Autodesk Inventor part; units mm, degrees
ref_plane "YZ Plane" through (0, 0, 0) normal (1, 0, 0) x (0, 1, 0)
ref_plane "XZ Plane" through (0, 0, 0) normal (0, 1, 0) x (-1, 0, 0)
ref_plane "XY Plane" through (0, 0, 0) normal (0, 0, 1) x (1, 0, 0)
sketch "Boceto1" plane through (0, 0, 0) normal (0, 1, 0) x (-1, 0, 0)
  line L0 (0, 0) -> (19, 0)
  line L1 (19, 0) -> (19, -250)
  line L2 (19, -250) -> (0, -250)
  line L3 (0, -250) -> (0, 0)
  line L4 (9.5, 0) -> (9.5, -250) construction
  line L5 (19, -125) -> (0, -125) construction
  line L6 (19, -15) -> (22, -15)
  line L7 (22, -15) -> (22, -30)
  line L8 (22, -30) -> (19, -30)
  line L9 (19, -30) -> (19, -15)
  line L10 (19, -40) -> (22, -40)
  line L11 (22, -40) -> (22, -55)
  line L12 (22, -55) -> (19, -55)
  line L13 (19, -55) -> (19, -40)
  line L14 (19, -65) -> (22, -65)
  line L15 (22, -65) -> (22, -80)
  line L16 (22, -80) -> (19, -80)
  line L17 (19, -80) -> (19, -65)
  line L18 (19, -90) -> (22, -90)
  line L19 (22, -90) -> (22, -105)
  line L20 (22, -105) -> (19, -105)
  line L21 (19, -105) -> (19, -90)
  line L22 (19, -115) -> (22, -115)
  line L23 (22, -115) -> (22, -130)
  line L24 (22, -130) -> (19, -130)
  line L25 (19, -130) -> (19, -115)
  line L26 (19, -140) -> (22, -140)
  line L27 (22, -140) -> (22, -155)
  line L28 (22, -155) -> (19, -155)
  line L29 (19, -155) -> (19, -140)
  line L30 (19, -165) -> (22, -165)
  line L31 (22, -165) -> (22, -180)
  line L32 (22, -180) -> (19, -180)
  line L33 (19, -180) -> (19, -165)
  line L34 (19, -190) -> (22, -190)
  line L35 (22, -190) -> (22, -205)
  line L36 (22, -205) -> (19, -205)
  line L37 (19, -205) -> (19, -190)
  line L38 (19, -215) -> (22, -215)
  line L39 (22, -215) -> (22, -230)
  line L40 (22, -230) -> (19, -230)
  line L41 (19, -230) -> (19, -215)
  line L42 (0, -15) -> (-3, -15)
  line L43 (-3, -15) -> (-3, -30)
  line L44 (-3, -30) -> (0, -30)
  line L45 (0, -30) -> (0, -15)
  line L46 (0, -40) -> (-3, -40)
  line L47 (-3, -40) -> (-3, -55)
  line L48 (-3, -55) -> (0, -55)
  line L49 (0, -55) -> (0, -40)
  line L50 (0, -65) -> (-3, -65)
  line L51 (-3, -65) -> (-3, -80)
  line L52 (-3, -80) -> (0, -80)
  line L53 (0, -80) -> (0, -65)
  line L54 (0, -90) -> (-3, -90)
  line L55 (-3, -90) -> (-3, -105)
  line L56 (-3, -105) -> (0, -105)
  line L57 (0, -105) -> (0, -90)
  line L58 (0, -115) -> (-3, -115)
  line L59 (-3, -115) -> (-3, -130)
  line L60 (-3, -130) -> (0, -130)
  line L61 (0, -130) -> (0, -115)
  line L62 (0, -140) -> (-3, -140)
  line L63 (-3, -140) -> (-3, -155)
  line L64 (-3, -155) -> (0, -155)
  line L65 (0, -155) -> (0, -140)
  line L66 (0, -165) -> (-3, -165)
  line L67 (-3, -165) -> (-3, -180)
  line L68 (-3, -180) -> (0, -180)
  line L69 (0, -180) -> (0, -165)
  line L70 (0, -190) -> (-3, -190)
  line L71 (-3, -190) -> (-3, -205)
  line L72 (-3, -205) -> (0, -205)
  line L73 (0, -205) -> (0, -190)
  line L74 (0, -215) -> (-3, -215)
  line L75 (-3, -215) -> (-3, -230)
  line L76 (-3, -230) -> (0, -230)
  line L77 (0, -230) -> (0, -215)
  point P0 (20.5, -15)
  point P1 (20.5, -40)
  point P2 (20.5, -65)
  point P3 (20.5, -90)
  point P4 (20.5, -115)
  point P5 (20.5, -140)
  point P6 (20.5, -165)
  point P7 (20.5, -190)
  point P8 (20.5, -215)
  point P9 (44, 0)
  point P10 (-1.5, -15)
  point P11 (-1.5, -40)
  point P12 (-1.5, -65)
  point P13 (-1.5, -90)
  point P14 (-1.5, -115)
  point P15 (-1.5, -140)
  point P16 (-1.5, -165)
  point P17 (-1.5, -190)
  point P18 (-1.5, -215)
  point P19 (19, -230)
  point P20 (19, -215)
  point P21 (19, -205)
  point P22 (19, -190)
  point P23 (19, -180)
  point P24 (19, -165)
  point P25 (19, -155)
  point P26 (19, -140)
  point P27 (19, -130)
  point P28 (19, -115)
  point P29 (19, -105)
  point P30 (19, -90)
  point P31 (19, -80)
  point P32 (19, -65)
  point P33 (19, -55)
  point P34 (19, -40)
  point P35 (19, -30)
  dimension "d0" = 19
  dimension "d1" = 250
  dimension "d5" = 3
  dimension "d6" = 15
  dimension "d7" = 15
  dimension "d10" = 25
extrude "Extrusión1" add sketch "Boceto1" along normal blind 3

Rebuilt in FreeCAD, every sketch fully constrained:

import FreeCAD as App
import Part
import Sketcher
from FreeCAD import Vector

doc = App.newDocument("Part")
body = doc.addObject("PartDesign::Body", "Body")

sketch1 = doc.addObject("Sketcher::SketchObject", "Sketch")
body.addObject(sketch1)
sketch1.AttachmentSupport = (doc.XZ_Plane, [""])
sketch1.MapMode = "FlatFace"
sketch1.addGeometry(Part.LineSegment(Vector(-19, 0, 0), Vector(0, 0, 0)), False)
sketch1.addGeometry(Part.LineSegment(Vector(0, 0, 0), Vector(0, -15, 0)), False)
sketch1.addGeometry(Part.LineSegment(Vector(0, -15, 0), Vector(3, -15, 0)), False)
sketch1.addGeometry(Part.LineSegment(Vector(3, -15, 0), Vector(3, -30, 0)), False)
sketch1.addGeometry(Part.LineSegment(Vector(3, -30, 0), Vector(0, -30, 0)), False)
sketch1.addGeometry(Part.LineSegment(Vector(0, -30, 0), Vector(0, -40, 0)), False)
sketch1.addGeometry(Part.LineSegment(Vector(0, -40, 0), Vector(3, -40, 0)), False)
sketch1.addGeometry(Part.LineSegment(Vector(3, -40, 0), Vector(3, -55, 0)), False)
sketch1.addGeometry(Part.LineSegment(Vector(3, -55, 0), Vector(0, -55, 0)), False)
sketch1.addGeometry(Part.LineSegment(Vector(0, -55, 0), Vector(0, -65, 0)), False)
sketch1.addGeometry(Part.LineSegment(Vector(0, -65, 0), Vector(3, -65, 0)), False)
sketch1.addGeometry(Part.LineSegment(Vector(3, -65, 0), Vector(3, -80, 0)), False)
sketch1.addGeometry(Part.LineSegment(Vector(3, -80, 0), Vector(0, -80, 0)), False)
sketch1.addGeometry(Part.LineSegment(Vector(0, -80, 0), Vector(0, -90, 0)), False)
sketch1.addGeometry(Part.LineSegment(Vector(0, -90, 0), Vector(3, -90, 0)), False)
sketch1.addGeometry(Part.LineSegment(Vector(3, -90, 0), Vector(3, -105, 0)), False)
sketch1.addGeometry(Part.LineSegment(Vector(3, -105, 0), Vector(0, -105, 0)), False)
sketch1.addGeometry(Part.LineSegment(Vector(0, -105, 0), Vector(0, -115, 0)), False)
sketch1.addGeometry(Part.LineSegment(Vector(0, -115, 0), Vector(3, -115, 0)), False)
sketch1.addGeometry(Part.LineSegment(Vector(3, -115, 0), Vector(3, -130, 0)), False)
sketch1.addGeometry(Part.LineSegment(Vector(3, -130, 0), Vector(0, -130, 0)), False)
sketch1.addGeometry(Part.LineSegment(Vector(0, -130, 0), Vector(0, -140, 0)), False)
sketch1.addGeometry(Part.LineSegment(Vector(0, -140, 0), Vector(3, -140, 0)), False)
sketch1.addGeometry(Part.LineSegment(Vector(3, -140, 0), Vector(3, -155, 0)), False)
sketch1.addGeometry(Part.LineSegment(Vector(3, -155, 0), Vector(0, -155, 0)), False)
sketch1.addGeometry(Part.LineSegment(Vector(0, -155, 0), Vector(0, -165, 0)), False)
sketch1.addGeometry(Part.LineSegment(Vector(0, -165, 0), Vector(3, -165, 0)), False)
sketch1.addGeometry(Part.LineSegment(Vector(3, -165, 0), Vector(3, -180, 0)), False)
sketch1.addGeometry(Part.LineSegment(Vector(3, -180, 0), Vector(0, -180, 0)), False)
sketch1.addGeometry(Part.LineSegment(Vector(0, -180, 0), Vector(0, -190, 0)), False)
sketch1.addGeometry(Part.LineSegment(Vector(0, -190, 0), Vector(3, -190, 0)), False)
sketch1.addGeometry(Part.LineSegment(Vector(3, -190, 0), Vector(3, -205, 0)), False)
sketch1.addGeometry(Part.LineSegment(Vector(3, -205, 0), Vector(0, -205, 0)), False)
sketch1.addGeometry(Part.LineSegment(Vector(0, -205, 0), Vector(0, -215, 0)), False)
sketch1.addGeometry(Part.LineSegment(Vector(0, -215, 0), Vector(3, -215, 0)), False)
sketch1.addGeometry(Part.LineSegment(Vector(3, -215, 0), Vector(3, -230, 0)), False)
sketch1.addGeometry(Part.LineSegment(Vector(3, -230, 0), Vector(0, -230, 0)), False)
sketch1.addGeometry(Part.LineSegment(Vector(0, -230, 0), Vector(0, -250, 0)), False)
sketch1.addGeometry(Part.LineSegment(Vector(0, -250, 0), Vector(-19, -250, 0)), False)
sketch1.addGeometry(Part.LineSegment(Vector(-19, -250, 0), Vector(-19, -230, 0)), False)
sketch1.addGeometry(Part.LineSegment(Vector(-19, -230, 0), Vector(-22, -230, 0)), False)
sketch1.addGeometry(Part.LineSegment(Vector(-22, -230, 0), Vector(-22, -215, 0)), False)
sketch1.addGeometry(Part.LineSegment(Vector(-22, -215, 0), Vector(-19, -215, 0)), False)
sketch1.addGeometry(Part.LineSegment(Vector(-19, -215, 0), Vector(-19, -205, 0)), False)
sketch1.addGeometry(Part.LineSegment(Vector(-19, -205, 0), Vector(-22, -205, 0)), False)
sketch1.addGeometry(Part.LineSegment(Vector(-22, -205, 0), Vector(-22, -190, 0)), False)
sketch1.addGeometry(Part.LineSegment(Vector(-22, -190, 0), Vector(-19, -190, 0)), False)
sketch1.addGeometry(Part.LineSegment(Vector(-19, -190, 0), Vector(-19, -180, 0)), False)
sketch1.addGeometry(Part.LineSegment(Vector(-19, -180, 0), Vector(-22, -180, 0)), False)
sketch1.addGeometry(Part.LineSegment(Vector(-22, -180, 0), Vector(-22, -165, 0)), False)
sketch1.addGeometry(Part.LineSegment(Vector(-22, -165, 0), Vector(-19, -165, 0)), False)
sketch1.addGeometry(Part.LineSegment(Vector(-19, -165, 0), Vector(-19, -155, 0)), False)
sketch1.addGeometry(Part.LineSegment(Vector(-19, -155, 0), Vector(-22, -155, 0)), False)
sketch1.addGeometry(Part.LineSegment(Vector(-22, -155, 0), Vector(-22, -140, 0)), False)
sketch1.addGeometry(Part.LineSegment(Vector(-22, -140, 0), Vector(-19, -140, 0)), False)
sketch1.addGeometry(Part.LineSegment(Vector(-19, -140, 0), Vector(-19, -130, 0)), False)
sketch1.addGeometry(Part.LineSegment(Vector(-19, -130, 0), Vector(-22, -130, 0)), False)
sketch1.addGeometry(Part.LineSegment(Vector(-22, -130, 0), Vector(-22, -115, 0)), False)
sketch1.addGeometry(Part.LineSegment(Vector(-22, -115, 0), Vector(-19, -115, 0)), False)
sketch1.addGeometry(Part.LineSegment(Vector(-19, -115, 0), Vector(-19, -105, 0)), False)
sketch1.addGeometry(Part.LineSegment(Vector(-19, -105, 0), Vector(-22, -105, 0)), False)
sketch1.addGeometry(Part.LineSegment(Vector(-22, -105, 0), Vector(-22, -90, 0)), False)
sketch1.addGeometry(Part.LineSegment(Vector(-22, -90, 0), Vector(-19, -90, 0)), False)
sketch1.addGeometry(Part.LineSegment(Vector(-19, -90, 0), Vector(-19, -80, 0)), False)
sketch1.addGeometry(Part.LineSegment(Vector(-19, -80, 0), Vector(-22, -80, 0)), False)
sketch1.addGeometry(Part.LineSegment(Vector(-22, -80, 0), Vector(-22, -65, 0)), False)
sketch1.addGeometry(Part.LineSegment(Vector(-22, -65, 0), Vector(-19, -65, 0)), False)
sketch1.addGeometry(Part.LineSegment(Vector(-19, -65, 0), Vector(-19, -55, 0)), False)
sketch1.addGeometry(Part.LineSegment(Vector(-19, -55, 0), Vector(-22, -55, 0)), False)
sketch1.addGeometry(Part.LineSegment(Vector(-22, -55, 0), Vector(-22, -40, 0)), False)
sketch1.addGeometry(Part.LineSegment(Vector(-22, -40, 0), Vector(-19, -40, 0)), False)
sketch1.addGeometry(Part.LineSegment(Vector(-19, -40, 0), Vector(-19, -30, 0)), False)
sketch1.addGeometry(Part.LineSegment(Vector(-19, -30, 0), Vector(-22, -30, 0)), False)
sketch1.addGeometry(Part.LineSegment(Vector(-22, -30, 0), Vector(-22, -15, 0)), False)
sketch1.addGeometry(Part.LineSegment(Vector(-22, -15, 0), Vector(-19, -15, 0)), False)
sketch1.addGeometry(Part.LineSegment(Vector(-19, -15, 0), Vector(-19, 0, 0)), False)
sketch1.addConstraint(Sketcher.Constraint("Coincident", 0, 2, 1, 1))
sketch1.addConstraint(Sketcher.Constraint("Coincident", 1, 2, 2, 1))
sketch1.addConstraint(Sketcher.Constraint("Coincident", 2, 2, 3, 1))
sketch1.addConstraint(Sketcher.Constraint("Coincident", 3, 2, 4, 1))
sketch1.addConstraint(Sketcher.Constraint("Coincident", 4, 2, 5, 1))
sketch1.addConstraint(Sketcher.Constraint("Coincident", 5, 2, 6, 1))
sketch1.addConstraint(Sketcher.Constraint("Coincident", 6, 2, 7, 1))
sketch1.addConstraint(Sketcher.Constraint("Coincident", 7, 2, 8, 1))
sketch1.addConstraint(Sketcher.Constraint("Coincident", 8, 2, 9, 1))
sketch1.addConstraint(Sketcher.Constraint("Coincident", 9, 2, 10, 1))
sketch1.addConstraint(Sketcher.Constraint("Coincident", 10, 2, 11, 1))
sketch1.addConstraint(Sketcher.Constraint("Coincident", 11, 2, 12, 1))
sketch1.addConstraint(Sketcher.Constraint("Coincident", 12, 2, 13, 1))
sketch1.addConstraint(Sketcher.Constraint("Coincident", 13, 2, 14, 1))
sketch1.addConstraint(Sketcher.Constraint("Coincident", 14, 2, 15, 1))
sketch1.addConstraint(Sketcher.Constraint("Coincident", 15, 2, 16, 1))
sketch1.addConstraint(Sketcher.Constraint("Coincident", 16, 2, 17, 1))
sketch1.addConstraint(Sketcher.Constraint("Coincident", 17, 2, 18, 1))
sketch1.addConstraint(Sketcher.Constraint("Coincident", 18, 2, 19, 1))
sketch1.addConstraint(Sketcher.Constraint("Coincident", 19, 2, 20, 1))
sketch1.addConstraint(Sketcher.Constraint("Coincident", 20, 2, 21, 1))
sketch1.addConstraint(Sketcher.Constraint("Coincident", 21, 2, 22, 1))
sketch1.addConstraint(Sketcher.Constraint("Coincident", 22, 2, 23, 1))
sketch1.addConstraint(Sketcher.Constraint("Coincident", 23, 2, 24, 1))
sketch1.addConstraint(Sketcher.Constraint("Coincident", 24, 2, 25, 1))
sketch1.addConstraint(Sketcher.Constraint("Coincident", 25, 2, 26, 1))
sketch1.addConstraint(Sketcher.Constraint("Coincident", 26, 2, 27, 1))
sketch1.addConstraint(Sketcher.Constraint("Coincident", 27, 2, 28, 1))
sketch1.addConstraint(Sketcher.Constraint("Coincident", 28, 2, 29, 1))
sketch1.addConstraint(Sketcher.Constraint("Coincident", 29, 2, 30, 1))
sketch1.addConstraint(Sketcher.Constraint("Coincident", 30, 2, 31, 1))
sketch1.addConstraint(Sketcher.Constraint("Coincident", 31, 2, 32, 1))
sketch1.addConstraint(Sketcher.Constraint("Coincident", 32, 2, 33, 1))
sketch1.addConstraint(Sketcher.Constraint("Coincident", 33, 2, 34, 1))
sketch1.addConstraint(Sketcher.Constraint("Coincident", 34, 2, 35, 1))
sketch1.addConstraint(Sketcher.Constraint("Coincident", 35, 2, 36, 1))
sketch1.addConstraint(Sketcher.Constraint("Coincident", 36, 2, 37, 1))
sketch1.addConstraint(Sketcher.Constraint("Coincident", 37, 2, 38, 1))
sketch1.addConstraint(Sketcher.Constraint("Coincident", 38, 2, 39, 1))
sketch1.addConstraint(Sketcher.Constraint("Coincident", 39, 2, 40, 1))
sketch1.addConstraint(Sketcher.Constraint("Coincident", 40, 2, 41, 1))
sketch1.addConstraint(Sketcher.Constraint("Coincident", 41, 2, 42, 1))
sketch1.addConstraint(Sketcher.Constraint("Coincident", 42, 2, 43, 1))
sketch1.addConstraint(Sketcher.Constraint("Coincident", 43, 2, 44, 1))
sketch1.addConstraint(Sketcher.Constraint("Coincident", 44, 2, 45, 1))
sketch1.addConstraint(Sketcher.Constraint("Coincident", 45, 2, 46, 1))
sketch1.addConstraint(Sketcher.Constraint("Coincident", 46, 2, 47, 1))
sketch1.addConstraint(Sketcher.Constraint("Coincident", 47, 2, 48, 1))
sketch1.addConstraint(Sketcher.Constraint("Coincident", 48, 2, 49, 1))
sketch1.addConstraint(Sketcher.Constraint("Coincident", 49, 2, 50, 1))
sketch1.addConstraint(Sketcher.Constraint("Coincident", 50, 2, 51, 1))
sketch1.addConstraint(Sketcher.Constraint("Coincident", 51, 2, 52, 1))
sketch1.addConstraint(Sketcher.Constraint("Coincident", 52, 2, 53, 1))
sketch1.addConstraint(Sketcher.Constraint("Coincident", 53, 2, 54, 1))
sketch1.addConstraint(Sketcher.Constraint("Coincident", 54, 2, 55, 1))
sketch1.addConstraint(Sketcher.Constraint("Coincident", 55, 2, 56, 1))
sketch1.addConstraint(Sketcher.Constraint("Coincident", 56, 2, 57, 1))
sketch1.addConstraint(Sketcher.Constraint("Coincident", 57, 2, 58, 1))
sketch1.addConstraint(Sketcher.Constraint("Coincident", 58, 2, 59, 1))
sketch1.addConstraint(Sketcher.Constraint("Coincident", 59, 2, 60, 1))
sketch1.addConstraint(Sketcher.Constraint("Coincident", 60, 2, 61, 1))
sketch1.addConstraint(Sketcher.Constraint("Coincident", 61, 2, 62, 1))
sketch1.addConstraint(Sketcher.Constraint("Coincident", 62, 2, 63, 1))
sketch1.addConstraint(Sketcher.Constraint("Coincident", 63, 2, 64, 1))
sketch1.addConstraint(Sketcher.Constraint("Coincident", 64, 2, 65, 1))
sketch1.addConstraint(Sketcher.Constraint("Coincident", 65, 2, 66, 1))
sketch1.addConstraint(Sketcher.Constraint("Coincident", 66, 2, 67, 1))
sketch1.addConstraint(Sketcher.Constraint("Coincident", 67, 2, 68, 1))
sketch1.addConstraint(Sketcher.Constraint("Coincident", 68, 2, 69, 1))
sketch1.addConstraint(Sketcher.Constraint("Coincident", 69, 2, 70, 1))
sketch1.addConstraint(Sketcher.Constraint("Coincident", 70, 2, 71, 1))
sketch1.addConstraint(Sketcher.Constraint("Coincident", 71, 2, 72, 1))
sketch1.addConstraint(Sketcher.Constraint("Coincident", 72, 2, 73, 1))
sketch1.addConstraint(Sketcher.Constraint("Coincident", 73, 2, 74, 1))
sketch1.addConstraint(Sketcher.Constraint("Coincident", 74, 2, 75, 1))
sketch1.addConstraint(Sketcher.Constraint("Coincident", 75, 2, 0, 1))
sketch1.addConstraint(Sketcher.Constraint("Horizontal", 0))
sketch1.addConstraint(Sketcher.Constraint("Vertical", 1))
sketch1.addConstraint(Sketcher.Constraint("Horizontal", 2))
sketch1.addConstraint(Sketcher.Constraint("Vertical", 3))
sketch1.addConstraint(Sketcher.Constraint("Horizontal", 4))
sketch1.addConstraint(Sketcher.Constraint("Vertical", 5))
sketch1.addConstraint(Sketcher.Constraint("Horizontal", 6))
sketch1.addConstraint(Sketcher.Constraint("Vertical", 7))
sketch1.addConstraint(Sketcher.Constraint("Horizontal", 8))
sketch1.addConstraint(Sketcher.Constraint("Vertical", 9))
sketch1.addConstraint(Sketcher.Constraint("Horizontal", 10))
sketch1.addConstraint(Sketcher.Constraint("Vertical", 11))
sketch1.addConstraint(Sketcher.Constraint("Horizontal", 12))
sketch1.addConstraint(Sketcher.Constraint("Vertical", 13))
sketch1.addConstraint(Sketcher.Constraint("Horizontal", 14))
sketch1.addConstraint(Sketcher.Constraint("Vertical", 15))
sketch1.addConstraint(Sketcher.Constraint("Horizontal", 16))
sketch1.addConstraint(Sketcher.Constraint("Vertical", 17))
sketch1.addConstraint(Sketcher.Constraint("Horizontal", 18))
sketch1.addConstraint(Sketcher.Constraint("Vertical", 19))
sketch1.addConstraint(Sketcher.Constraint("Horizontal", 20))
sketch1.addConstraint(Sketcher.Constraint("Vertical", 21))
sketch1.addConstraint(Sketcher.Constraint("Horizontal", 22))
sketch1.addConstraint(Sketcher.Constraint("Vertical", 23))
sketch1.addConstraint(Sketcher.Constraint("Horizontal", 24))
sketch1.addConstraint(Sketcher.Constraint("Vertical", 25))
sketch1.addConstraint(Sketcher.Constraint("Horizontal", 26))
sketch1.addConstraint(Sketcher.Constraint("Vertical", 27))
sketch1.addConstraint(Sketcher.Constraint("Horizontal", 28))
sketch1.addConstraint(Sketcher.Constraint("Vertical", 29))
sketch1.addConstraint(Sketcher.Constraint("Horizontal", 30))
sketch1.addConstraint(Sketcher.Constraint("Vertical", 31))
sketch1.addConstraint(Sketcher.Constraint("Horizontal", 32))
sketch1.addConstraint(Sketcher.Constraint("Vertical", 33))
sketch1.addConstraint(Sketcher.Constraint("Horizontal", 34))
sketch1.addConstraint(Sketcher.Constraint("Vertical", 35))
sketch1.addConstraint(Sketcher.Constraint("Horizontal", 36))
sketch1.addConstraint(Sketcher.Constraint("Vertical", 37))
sketch1.addConstraint(Sketcher.Constraint("Horizontal", 38))
sketch1.addConstraint(Sketcher.Constraint("Vertical", 39))
sketch1.addConstraint(Sketcher.Constraint("Horizontal", 40))
sketch1.addConstraint(Sketcher.Constraint("Vertical", 41))
sketch1.addConstraint(Sketcher.Constraint("Horizontal", 42))
sketch1.addConstraint(Sketcher.Constraint("Vertical", 43))
sketch1.addConstraint(Sketcher.Constraint("Horizontal", 44))
sketch1.addConstraint(Sketcher.Constraint("Vertical", 45))
sketch1.addConstraint(Sketcher.Constraint("Horizontal", 46))
sketch1.addConstraint(Sketcher.Constraint("Vertical", 47))
sketch1.addConstraint(Sketcher.Constraint("Horizontal", 48))
sketch1.addConstraint(Sketcher.Constraint("Vertical", 49))
sketch1.addConstraint(Sketcher.Constraint("Horizontal", 50))
sketch1.addConstraint(Sketcher.Constraint("Vertical", 51))
sketch1.addConstraint(Sketcher.Constraint("Horizontal", 52))
sketch1.addConstraint(Sketcher.Constraint("Vertical", 53))
sketch1.addConstraint(Sketcher.Constraint("Horizontal", 54))
sketch1.addConstraint(Sketcher.Constraint("Vertical", 55))
sketch1.addConstraint(Sketcher.Constraint("Horizontal", 56))
sketch1.addConstraint(Sketcher.Constraint("Vertical", 57))
sketch1.addConstraint(Sketcher.Constraint("Horizontal", 58))
sketch1.addConstraint(Sketcher.Constraint("Vertical", 59))
sketch1.addConstraint(Sketcher.Constraint("Horizontal", 60))
sketch1.addConstraint(Sketcher.Constraint("Vertical", 61))
sketch1.addConstraint(Sketcher.Constraint("Horizontal", 62))
sketch1.addConstraint(Sketcher.Constraint("Vertical", 63))
sketch1.addConstraint(Sketcher.Constraint("Horizontal", 64))
sketch1.addConstraint(Sketcher.Constraint("Vertical", 65))
sketch1.addConstraint(Sketcher.Constraint("Horizontal", 66))
sketch1.addConstraint(Sketcher.Constraint("Vertical", 67))
sketch1.addConstraint(Sketcher.Constraint("Horizontal", 68))
sketch1.addConstraint(Sketcher.Constraint("Vertical", 69))
sketch1.addConstraint(Sketcher.Constraint("Horizontal", 70))
sketch1.addConstraint(Sketcher.Constraint("Vertical", 71))
sketch1.addConstraint(Sketcher.Constraint("Horizontal", 72))
sketch1.addConstraint(Sketcher.Constraint("Vertical", 73))
sketch1.addConstraint(Sketcher.Constraint("Horizontal", 74))
sketch1.addConstraint(Sketcher.Constraint("Vertical", 75))
sketch1.addConstraint(Sketcher.Constraint("Coincident", 0, 2, -1, 1))
sketch1.addConstraint(Sketcher.Constraint("PointOnObject", 4, 2, -2))
sketch1.addConstraint(Sketcher.Constraint("PointOnObject", 8, 2, -2))
sketch1.addConstraint(Sketcher.Constraint("PointOnObject", 12, 2, -2))
sketch1.addConstraint(Sketcher.Constraint("PointOnObject", 16, 2, -2))
sketch1.addConstraint(Sketcher.Constraint("PointOnObject", 20, 2, -2))
sketch1.addConstraint(Sketcher.Constraint("PointOnObject", 24, 2, -2))
sketch1.addConstraint(Sketcher.Constraint("PointOnObject", 28, 2, -2))
sketch1.addConstraint(Sketcher.Constraint("PointOnObject", 32, 2, -2))
sketch1.addConstraint(Sketcher.Constraint("PointOnObject", 36, 2, -2))
sketch1.addConstraint(Sketcher.Constraint("Horizontal", 36, 2, 39, 2))
sketch1.addConstraint(Sketcher.Constraint("Horizontal", 34, 2, 41, 2))
sketch1.addConstraint(Sketcher.Constraint("Horizontal", 32, 2, 43, 2))
sketch1.addConstraint(Sketcher.Constraint("Horizontal", 30, 2, 45, 2))
sketch1.addConstraint(Sketcher.Constraint("Horizontal", 28, 2, 47, 2))
sketch1.addConstraint(Sketcher.Constraint("Horizontal", 26, 2, 49, 2))
sketch1.addConstraint(Sketcher.Constraint("Horizontal", 24, 2, 51, 2))
sketch1.addConstraint(Sketcher.Constraint("Horizontal", 22, 2, 53, 2))
sketch1.addConstraint(Sketcher.Constraint("Horizontal", 20, 2, 55, 2))
sketch1.addConstraint(Sketcher.Constraint("Horizontal", 18, 2, 57, 2))
sketch1.addConstraint(Sketcher.Constraint("Horizontal", 16, 2, 59, 2))
sketch1.addConstraint(Sketcher.Constraint("Horizontal", 14, 2, 61, 2))
sketch1.addConstraint(Sketcher.Constraint("Horizontal", 12, 2, 63, 2))
sketch1.addConstraint(Sketcher.Constraint("Horizontal", 10, 2, 65, 2))
sketch1.addConstraint(Sketcher.Constraint("Horizontal", 8, 2, 67, 2))
sketch1.addConstraint(Sketcher.Constraint("Horizontal", 6, 2, 69, 2))
sketch1.addConstraint(Sketcher.Constraint("Horizontal", 4, 2, 71, 2))
sketch1.addConstraint(Sketcher.Constraint("Horizontal", 2, 2, 73, 2))
sketch1.addConstraint(Sketcher.Constraint("Vertical", 3, 2, 6, 2))
sketch1.addConstraint(Sketcher.Constraint("Vertical", 7, 2, 10, 2))
sketch1.addConstraint(Sketcher.Constraint("Vertical", 11, 2, 14, 2))
sketch1.addConstraint(Sketcher.Constraint("Vertical", 15, 2, 18, 2))
sketch1.addConstraint(Sketcher.Constraint("Vertical", 19, 2, 22, 2))
sketch1.addConstraint(Sketcher.Constraint("Vertical", 23, 2, 26, 2))
sketch1.addConstraint(Sketcher.Constraint("Vertical", 27, 2, 30, 2))
sketch1.addConstraint(Sketcher.Constraint("Vertical", 31, 2, 34, 2))
sketch1.addConstraint(Sketcher.Constraint("Vertical", 39, 2, 42, 2))
sketch1.addConstraint(Sketcher.Constraint("Vertical", 41, 2, 44, 2))
sketch1.addConstraint(Sketcher.Constraint("Vertical", 43, 2, 46, 2))
sketch1.addConstraint(Sketcher.Constraint("Vertical", 45, 2, 48, 2))
sketch1.addConstraint(Sketcher.Constraint("Vertical", 47, 2, 50, 2))
sketch1.addConstraint(Sketcher.Constraint("Vertical", 49, 2, 52, 2))
sketch1.addConstraint(Sketcher.Constraint("Vertical", 51, 2, 54, 2))
sketch1.addConstraint(Sketcher.Constraint("Vertical", 53, 2, 56, 2))
sketch1.addConstraint(Sketcher.Constraint("Vertical", 55, 2, 58, 2))
sketch1.addConstraint(Sketcher.Constraint("Vertical", 57, 2, 60, 2))
sketch1.addConstraint(Sketcher.Constraint("Vertical", 59, 2, 62, 2))
sketch1.addConstraint(Sketcher.Constraint("Vertical", 61, 2, 64, 2))
sketch1.addConstraint(Sketcher.Constraint("Vertical", 63, 2, 66, 2))
sketch1.addConstraint(Sketcher.Constraint("Vertical", 65, 2, 68, 2))
sketch1.addConstraint(Sketcher.Constraint("Vertical", 67, 2, 70, 2))
sketch1.addConstraint(Sketcher.Constraint("Vertical", 69, 2, 72, 2))
sketch1.addConstraint(Sketcher.Constraint("Vertical", 71, 2, 74, 2))
sketch1.addConstraint(Sketcher.Constraint("Equal", 36, 40))
sketch1.addConstraint(Sketcher.Constraint("Equal", 1, 3))
sketch1.addConstraint(Sketcher.Constraint("Equal", 3, 7))
sketch1.addConstraint(Sketcher.Constraint("Equal", 5, 9))
sketch1.addConstraint(Sketcher.Constraint("Equal", 7, 11))
sketch1.addConstraint(Sketcher.Constraint("Equal", 9, 13))
sketch1.addConstraint(Sketcher.Constraint("Equal", 11, 15))
sketch1.addConstraint(Sketcher.Constraint("Equal", 13, 17))
sketch1.addConstraint(Sketcher.Constraint("Equal", 15, 19))
sketch1.addConstraint(Sketcher.Constraint("Equal", 17, 21))
sketch1.addConstraint(Sketcher.Constraint("Equal", 19, 23))
sketch1.addConstraint(Sketcher.Constraint("Equal", 21, 25))
sketch1.addConstraint(Sketcher.Constraint("Equal", 23, 27))
sketch1.addConstraint(Sketcher.Constraint("Equal", 25, 29))
sketch1.addConstraint(Sketcher.Constraint("Equal", 27, 31))
sketch1.addConstraint(Sketcher.Constraint("Equal", 29, 33))
sketch1.addConstraint(Sketcher.Constraint("Equal", 31, 35))
sketch1.addConstraint(Sketcher.Constraint("DistanceX", 0, 1, 0, 2, 19.0))
sketch1.addConstraint(Sketcher.Constraint("DistanceX", 2, 1, 2, 2, 3.0))
sketch1.addConstraint(Sketcher.Constraint("DistanceY", 1, 2, 1, 1, 15.0))
sketch1.addConstraint(Sketcher.Constraint("DistanceY", 37, 2, -1, 1, 250.0))
sketch1.addConstraint(Sketcher.Constraint("DistanceY", 5, 2, 5, 1, 10.0))
pad1 = doc.addObject("PartDesign::Pad", "Pad")
body.addObject(pad1)
pad1.Profile = sketch1
pad1.Length = 3
pad1.Reversed = True

doc.recompute()
